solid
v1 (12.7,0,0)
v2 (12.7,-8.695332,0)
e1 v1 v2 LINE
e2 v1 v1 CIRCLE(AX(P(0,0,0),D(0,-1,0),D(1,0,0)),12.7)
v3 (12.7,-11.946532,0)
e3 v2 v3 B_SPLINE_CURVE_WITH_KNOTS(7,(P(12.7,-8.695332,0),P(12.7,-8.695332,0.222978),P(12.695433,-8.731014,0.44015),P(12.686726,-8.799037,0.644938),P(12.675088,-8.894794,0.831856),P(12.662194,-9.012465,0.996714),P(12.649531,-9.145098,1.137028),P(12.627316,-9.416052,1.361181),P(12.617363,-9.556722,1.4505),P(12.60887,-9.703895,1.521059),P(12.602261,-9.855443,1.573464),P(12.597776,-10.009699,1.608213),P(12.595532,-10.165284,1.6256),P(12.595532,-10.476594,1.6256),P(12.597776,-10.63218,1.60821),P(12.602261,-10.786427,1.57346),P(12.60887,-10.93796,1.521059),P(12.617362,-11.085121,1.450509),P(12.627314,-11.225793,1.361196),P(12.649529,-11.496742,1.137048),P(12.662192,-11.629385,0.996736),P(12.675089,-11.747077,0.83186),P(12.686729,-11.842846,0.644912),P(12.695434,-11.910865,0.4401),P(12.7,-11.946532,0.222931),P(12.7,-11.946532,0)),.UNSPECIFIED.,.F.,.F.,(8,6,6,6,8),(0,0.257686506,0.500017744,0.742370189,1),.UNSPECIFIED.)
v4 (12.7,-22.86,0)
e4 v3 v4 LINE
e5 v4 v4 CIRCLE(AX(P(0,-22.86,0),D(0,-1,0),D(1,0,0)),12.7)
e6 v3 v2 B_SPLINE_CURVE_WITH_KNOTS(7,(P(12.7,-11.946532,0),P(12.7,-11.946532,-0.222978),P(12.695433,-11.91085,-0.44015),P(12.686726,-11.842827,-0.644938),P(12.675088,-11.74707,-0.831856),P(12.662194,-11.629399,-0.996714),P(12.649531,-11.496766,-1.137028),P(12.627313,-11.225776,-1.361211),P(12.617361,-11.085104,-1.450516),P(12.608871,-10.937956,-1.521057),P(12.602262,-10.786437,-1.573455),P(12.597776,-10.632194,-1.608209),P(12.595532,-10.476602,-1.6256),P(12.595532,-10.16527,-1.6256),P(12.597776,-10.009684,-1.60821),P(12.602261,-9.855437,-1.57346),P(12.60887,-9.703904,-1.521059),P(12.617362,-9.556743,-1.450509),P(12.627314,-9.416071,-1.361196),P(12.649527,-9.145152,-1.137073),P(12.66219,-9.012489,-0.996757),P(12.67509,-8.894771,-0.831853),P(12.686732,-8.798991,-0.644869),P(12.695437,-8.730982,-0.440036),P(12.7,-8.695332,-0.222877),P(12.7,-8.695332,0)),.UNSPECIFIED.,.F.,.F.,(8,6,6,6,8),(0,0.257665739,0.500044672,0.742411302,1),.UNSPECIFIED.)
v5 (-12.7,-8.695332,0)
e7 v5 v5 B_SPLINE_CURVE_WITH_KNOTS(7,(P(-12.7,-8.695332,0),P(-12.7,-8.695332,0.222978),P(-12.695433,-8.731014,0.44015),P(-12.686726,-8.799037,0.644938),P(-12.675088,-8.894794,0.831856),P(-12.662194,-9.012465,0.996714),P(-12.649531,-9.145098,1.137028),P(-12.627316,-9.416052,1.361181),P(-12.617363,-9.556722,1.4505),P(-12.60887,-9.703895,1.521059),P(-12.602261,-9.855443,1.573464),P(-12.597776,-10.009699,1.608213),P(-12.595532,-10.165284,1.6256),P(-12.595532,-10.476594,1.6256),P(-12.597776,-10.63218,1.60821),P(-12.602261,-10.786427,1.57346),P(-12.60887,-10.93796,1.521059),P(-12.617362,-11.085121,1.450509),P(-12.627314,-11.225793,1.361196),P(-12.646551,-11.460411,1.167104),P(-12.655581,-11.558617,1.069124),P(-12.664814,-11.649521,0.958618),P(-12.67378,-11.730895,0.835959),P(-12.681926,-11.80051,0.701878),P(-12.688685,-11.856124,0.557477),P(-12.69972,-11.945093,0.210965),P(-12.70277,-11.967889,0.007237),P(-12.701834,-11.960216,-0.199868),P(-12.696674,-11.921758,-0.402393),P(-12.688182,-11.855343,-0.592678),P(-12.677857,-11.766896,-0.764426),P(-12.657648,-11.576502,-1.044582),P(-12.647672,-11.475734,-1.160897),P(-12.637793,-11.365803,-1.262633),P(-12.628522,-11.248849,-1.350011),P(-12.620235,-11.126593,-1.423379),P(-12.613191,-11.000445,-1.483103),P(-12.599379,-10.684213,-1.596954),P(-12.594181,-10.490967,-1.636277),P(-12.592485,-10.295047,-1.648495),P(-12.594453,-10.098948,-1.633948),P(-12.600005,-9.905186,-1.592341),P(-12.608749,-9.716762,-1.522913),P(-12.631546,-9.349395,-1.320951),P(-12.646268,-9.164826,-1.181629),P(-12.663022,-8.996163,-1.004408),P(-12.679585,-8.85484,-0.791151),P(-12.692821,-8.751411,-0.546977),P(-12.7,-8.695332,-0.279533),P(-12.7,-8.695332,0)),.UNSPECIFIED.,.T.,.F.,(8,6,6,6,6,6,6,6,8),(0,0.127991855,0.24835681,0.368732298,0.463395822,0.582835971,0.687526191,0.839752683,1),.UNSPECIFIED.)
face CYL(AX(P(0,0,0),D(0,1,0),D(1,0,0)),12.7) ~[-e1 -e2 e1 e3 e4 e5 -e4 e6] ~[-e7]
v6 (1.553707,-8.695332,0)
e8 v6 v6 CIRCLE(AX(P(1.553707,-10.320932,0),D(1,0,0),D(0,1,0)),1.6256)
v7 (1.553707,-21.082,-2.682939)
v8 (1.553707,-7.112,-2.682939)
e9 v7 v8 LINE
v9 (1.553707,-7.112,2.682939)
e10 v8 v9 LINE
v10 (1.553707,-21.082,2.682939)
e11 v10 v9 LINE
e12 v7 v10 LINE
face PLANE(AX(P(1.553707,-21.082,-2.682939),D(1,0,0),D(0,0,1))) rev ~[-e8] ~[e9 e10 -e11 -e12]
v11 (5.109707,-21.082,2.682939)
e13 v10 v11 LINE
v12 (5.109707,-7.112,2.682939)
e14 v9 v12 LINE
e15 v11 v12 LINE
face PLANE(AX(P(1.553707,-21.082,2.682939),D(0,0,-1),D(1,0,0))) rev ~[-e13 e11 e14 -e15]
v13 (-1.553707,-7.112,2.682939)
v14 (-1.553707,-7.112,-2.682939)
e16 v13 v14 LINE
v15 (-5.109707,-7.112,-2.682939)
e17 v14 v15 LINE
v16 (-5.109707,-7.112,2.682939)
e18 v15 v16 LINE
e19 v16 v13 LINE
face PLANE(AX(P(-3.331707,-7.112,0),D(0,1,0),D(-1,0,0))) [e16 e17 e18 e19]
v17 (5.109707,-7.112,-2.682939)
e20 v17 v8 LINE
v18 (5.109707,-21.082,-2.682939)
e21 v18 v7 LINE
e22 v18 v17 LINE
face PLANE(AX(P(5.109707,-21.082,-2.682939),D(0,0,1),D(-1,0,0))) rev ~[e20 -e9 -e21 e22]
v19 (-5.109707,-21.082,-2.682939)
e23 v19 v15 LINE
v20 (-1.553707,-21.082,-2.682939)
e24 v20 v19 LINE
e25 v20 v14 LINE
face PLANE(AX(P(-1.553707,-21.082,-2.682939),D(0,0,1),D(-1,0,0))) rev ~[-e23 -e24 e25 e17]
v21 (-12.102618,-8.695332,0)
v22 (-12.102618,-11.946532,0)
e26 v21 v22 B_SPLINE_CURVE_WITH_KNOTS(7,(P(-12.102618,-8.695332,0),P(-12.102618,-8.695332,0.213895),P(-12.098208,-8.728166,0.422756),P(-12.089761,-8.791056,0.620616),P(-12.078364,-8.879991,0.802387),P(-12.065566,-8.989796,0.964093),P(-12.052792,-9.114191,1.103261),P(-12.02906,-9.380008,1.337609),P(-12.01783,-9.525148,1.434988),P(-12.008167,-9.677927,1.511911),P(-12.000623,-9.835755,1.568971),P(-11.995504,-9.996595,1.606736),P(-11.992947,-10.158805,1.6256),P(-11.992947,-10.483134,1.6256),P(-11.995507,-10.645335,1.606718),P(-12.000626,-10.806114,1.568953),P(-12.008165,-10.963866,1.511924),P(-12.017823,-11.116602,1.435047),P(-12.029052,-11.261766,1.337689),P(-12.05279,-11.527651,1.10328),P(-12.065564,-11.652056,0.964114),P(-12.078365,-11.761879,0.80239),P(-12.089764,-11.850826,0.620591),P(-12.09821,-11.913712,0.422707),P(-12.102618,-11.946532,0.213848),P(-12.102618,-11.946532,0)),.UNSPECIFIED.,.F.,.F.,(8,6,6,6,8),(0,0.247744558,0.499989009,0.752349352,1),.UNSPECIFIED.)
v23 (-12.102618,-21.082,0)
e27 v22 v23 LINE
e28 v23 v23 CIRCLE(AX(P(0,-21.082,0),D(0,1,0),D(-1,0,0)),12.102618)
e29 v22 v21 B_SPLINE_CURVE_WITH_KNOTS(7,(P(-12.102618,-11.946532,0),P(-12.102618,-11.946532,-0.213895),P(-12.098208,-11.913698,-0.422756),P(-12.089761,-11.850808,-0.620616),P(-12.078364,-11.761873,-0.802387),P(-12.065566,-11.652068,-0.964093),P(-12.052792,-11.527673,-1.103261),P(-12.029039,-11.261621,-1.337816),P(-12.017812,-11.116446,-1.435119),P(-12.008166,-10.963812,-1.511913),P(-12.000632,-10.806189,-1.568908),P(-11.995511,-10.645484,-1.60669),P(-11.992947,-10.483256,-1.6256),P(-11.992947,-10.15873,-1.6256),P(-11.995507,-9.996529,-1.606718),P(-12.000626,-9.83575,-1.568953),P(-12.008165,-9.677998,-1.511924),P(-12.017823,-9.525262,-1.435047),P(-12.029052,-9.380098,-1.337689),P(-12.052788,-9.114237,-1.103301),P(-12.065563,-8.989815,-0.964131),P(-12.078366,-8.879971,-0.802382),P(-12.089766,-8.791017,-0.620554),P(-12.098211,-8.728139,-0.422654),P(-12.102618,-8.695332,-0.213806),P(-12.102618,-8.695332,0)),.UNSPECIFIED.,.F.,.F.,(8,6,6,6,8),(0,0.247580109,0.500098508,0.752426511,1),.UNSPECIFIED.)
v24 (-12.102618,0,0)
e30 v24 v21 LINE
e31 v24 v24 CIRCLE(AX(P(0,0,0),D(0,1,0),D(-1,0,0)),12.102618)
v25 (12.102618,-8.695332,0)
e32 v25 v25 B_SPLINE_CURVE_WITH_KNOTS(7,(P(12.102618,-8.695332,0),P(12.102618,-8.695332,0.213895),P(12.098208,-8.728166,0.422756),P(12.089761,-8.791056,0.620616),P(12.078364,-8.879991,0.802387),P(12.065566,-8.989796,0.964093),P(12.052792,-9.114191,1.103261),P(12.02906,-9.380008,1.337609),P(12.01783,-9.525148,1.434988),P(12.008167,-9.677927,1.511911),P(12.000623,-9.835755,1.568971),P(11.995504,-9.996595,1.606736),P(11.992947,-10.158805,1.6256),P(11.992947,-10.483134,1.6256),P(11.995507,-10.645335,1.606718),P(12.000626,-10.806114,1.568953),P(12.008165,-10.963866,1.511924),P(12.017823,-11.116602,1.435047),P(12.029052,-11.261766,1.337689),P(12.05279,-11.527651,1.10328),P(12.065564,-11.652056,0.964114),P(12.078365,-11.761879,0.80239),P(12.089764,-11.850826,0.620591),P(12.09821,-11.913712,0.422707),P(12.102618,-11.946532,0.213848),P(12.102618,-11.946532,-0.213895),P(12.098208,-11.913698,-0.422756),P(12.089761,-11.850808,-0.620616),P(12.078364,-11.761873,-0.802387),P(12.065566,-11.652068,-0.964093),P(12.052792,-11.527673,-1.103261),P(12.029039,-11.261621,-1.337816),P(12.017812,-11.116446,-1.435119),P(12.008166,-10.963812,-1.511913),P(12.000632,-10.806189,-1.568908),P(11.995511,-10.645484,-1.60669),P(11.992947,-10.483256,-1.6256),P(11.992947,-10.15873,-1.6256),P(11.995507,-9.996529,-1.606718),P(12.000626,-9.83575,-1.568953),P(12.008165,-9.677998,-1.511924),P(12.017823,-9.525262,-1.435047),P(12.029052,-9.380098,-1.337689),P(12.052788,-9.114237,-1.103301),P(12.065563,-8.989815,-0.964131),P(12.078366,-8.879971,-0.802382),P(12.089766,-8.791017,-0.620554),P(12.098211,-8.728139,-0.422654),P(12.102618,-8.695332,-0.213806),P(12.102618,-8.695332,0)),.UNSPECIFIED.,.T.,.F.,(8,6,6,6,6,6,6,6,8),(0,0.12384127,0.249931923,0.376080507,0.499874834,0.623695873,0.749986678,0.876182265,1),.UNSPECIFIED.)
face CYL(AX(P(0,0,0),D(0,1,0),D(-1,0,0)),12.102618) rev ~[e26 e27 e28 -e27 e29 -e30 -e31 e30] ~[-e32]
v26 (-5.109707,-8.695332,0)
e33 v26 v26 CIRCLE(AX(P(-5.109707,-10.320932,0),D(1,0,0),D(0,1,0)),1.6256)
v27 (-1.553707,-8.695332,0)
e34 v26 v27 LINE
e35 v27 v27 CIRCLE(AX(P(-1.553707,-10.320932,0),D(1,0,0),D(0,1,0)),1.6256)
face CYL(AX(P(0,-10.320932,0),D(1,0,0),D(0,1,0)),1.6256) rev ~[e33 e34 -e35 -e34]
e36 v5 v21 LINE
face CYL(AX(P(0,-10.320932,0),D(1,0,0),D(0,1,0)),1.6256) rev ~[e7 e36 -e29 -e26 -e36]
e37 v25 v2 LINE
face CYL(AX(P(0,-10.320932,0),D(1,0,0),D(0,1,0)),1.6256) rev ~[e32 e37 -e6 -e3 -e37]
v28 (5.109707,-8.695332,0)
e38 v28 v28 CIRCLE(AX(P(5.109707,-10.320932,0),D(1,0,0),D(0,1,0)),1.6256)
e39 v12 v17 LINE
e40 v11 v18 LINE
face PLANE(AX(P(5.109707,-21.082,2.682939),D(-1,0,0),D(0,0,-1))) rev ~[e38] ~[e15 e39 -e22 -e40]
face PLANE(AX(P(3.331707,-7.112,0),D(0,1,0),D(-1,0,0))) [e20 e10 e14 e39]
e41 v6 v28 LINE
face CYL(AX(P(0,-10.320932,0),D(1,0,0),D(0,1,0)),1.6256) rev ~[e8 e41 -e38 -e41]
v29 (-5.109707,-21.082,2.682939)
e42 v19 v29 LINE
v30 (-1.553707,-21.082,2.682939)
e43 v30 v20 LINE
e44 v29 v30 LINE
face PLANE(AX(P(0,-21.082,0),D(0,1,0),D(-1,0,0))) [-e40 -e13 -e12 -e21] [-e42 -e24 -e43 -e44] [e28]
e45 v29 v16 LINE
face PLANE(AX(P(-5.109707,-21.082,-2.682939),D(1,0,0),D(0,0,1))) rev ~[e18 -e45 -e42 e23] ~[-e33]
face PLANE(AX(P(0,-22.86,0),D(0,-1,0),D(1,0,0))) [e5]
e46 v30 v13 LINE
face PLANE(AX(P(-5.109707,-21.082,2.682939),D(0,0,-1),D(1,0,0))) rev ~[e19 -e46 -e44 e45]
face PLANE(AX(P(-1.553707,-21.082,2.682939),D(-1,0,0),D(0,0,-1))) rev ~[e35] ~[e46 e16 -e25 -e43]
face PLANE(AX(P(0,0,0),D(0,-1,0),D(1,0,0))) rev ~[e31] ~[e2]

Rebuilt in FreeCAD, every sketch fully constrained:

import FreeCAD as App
import Part
import Sketcher

V = App.Vector
Q = App.Units.Quantity


def add_polygon(sketch, points):
    """Adds a closed chain of lines whose ends are joined by coincident constraints."""
    first, n = sketch.GeometryCount, len(points)
    for a, b in zip(points, points[1:] + points[:1]):
        sketch.addGeometry(Part.LineSegment(App.Vector(*a, 0), App.Vector(*b, 0)), False)
    for i in range(n):
        sketch.addConstraint(Sketcher.Constraint("Coincident", first + i, 2, first + (i + 1) % n, 1))

doc = App.newDocument("Part")
body = doc.addObject("PartDesign::Body", "Body")

sketch1 = body.newObject("Sketcher::SketchObject", "Sketch")
sketch1.AttachmentSupport = (doc.getObject("XZ_Plane"), [""])
sketch1.MapMode = "FlatFace"
sketch1.addGeometry(Part.Circle(V(0, 0, 0), V(0, 0, 1), 13), False)
sketch1.addConstraint(Sketcher.Constraint("Coincident", 0, 3, -1, 1))
sketch1.addConstraint(Sketcher.Constraint("Diameter", 0, Q("1 in")))
pad1 = body.newObject("PartDesign::Pad", "Pad")
pad1.Profile = sketch1
pad1.Length = Q("0.9 in")

sketch2 = body.newObject("Sketcher::SketchObject", "Sketch001")
sketch2.AttachmentSupport = (doc.getObject("XZ_Plane"), [""])
sketch2.MapMode = "FlatFace"
sketch2.addGeometry(Part.Circle(V(0, 0, 0), V(0, 0, 1), 12), False)
sketch2.addConstraint(Sketcher.Constraint("Coincident", 0, 3, -1, 1))
sketch2.addConstraint(Sketcher.Constraint("Diameter", 0, 24.205236))
pocket1 = body.newObject("PartDesign::Pocket", "Pocket")
pocket1.Profile = sketch2
pocket1.Length = Q("0.83 in")
pocket1.Reversed = True

sketch3 = body.newObject("Sketcher::SketchObject", "Sketch002")
sketch3.AttachmentSupport = (doc.getObject("XZ_Plane"), [""])
sketch3.MapMode = "FlatFace"
sketch3.AttachmentOffset = App.Placement(V(0, 0, 0.83 * 25.4), App.Rotation())
add_polygon(sketch3, [(1.6, 2.7), (5.1, 2.7), (5.1, -2.7), (1.6, -2.7)])
add_polygon(sketch3, [(-1.6, 2.7), (-1.6, -2.7), (-5.1, -2.7), (-5.1, 2.7)])
sketch3.addConstraint(Sketcher.Constraint("Horizontal", 0))
sketch3.addConstraint(Sketcher.Constraint("Vertical", 1))
sketch3.addConstraint(Sketcher.Constraint("Horizontal", 2))
sketch3.addConstraint(Sketcher.Constraint("Vertical", 3))
sketch3.addConstraint(Sketcher.Constraint("Vertical", 4))
sketch3.addConstraint(Sketcher.Constraint("Horizontal", 5))
sketch3.addConstraint(Sketcher.Constraint("Vertical", 6))
sketch3.addConstraint(Sketcher.Constraint("Horizontal", 7))
sketch3.addConstraint(Sketcher.Constraint("Symmetric", 3, 2, 4, 2, -1, 1))
sketch3.addConstraint(Sketcher.Constraint("Symmetric", 1, 2, 6, 2, -1, 1))
sketch3.addConstraint(Sketcher.Constraint("Horizontal", 2, 2, 4, 2))
sketch3.addConstraint(Sketcher.Constraint("DistanceX", 0, 1, 0, 2, Q("0.14 in")))
sketch3.addConstraint(Sketcher.Constraint("DistanceY", 1, 2, 1, 1, 5.365878))
sketch3.addConstraint(Sketcher.Constraint("DistanceX", -1, 1, 0, 2, 5.109707))
pad2 = body.newObject("PartDesign::Pad", "Pad001")
pad2.Profile = sketch3
pad2.Length = Q("0.55 in")
pad2.Reversed = True

sketch4 = body.newObject("Sketcher::SketchObject", "Sketch003")
sketch4.AttachmentSupport = (doc.getObject("YZ_Plane"), [""])
sketch4.MapMode = "FlatFace"
sketch4.addGeometry(Part.Circle(V(-10.3, 0, 0), V(0, 0, 1), 1.6), False)
sketch4.addConstraint(Sketcher.Constraint("PointOnObject", 0, 3, -1))
sketch4.addConstraint(Sketcher.Constraint("Diameter", 0, Q("0.128 in")))
sketch4.addConstraint(Sketcher.Constraint("DistanceX", 0, 3, -1, 1, 10.320932))
pocket2 = body.newObject("PartDesign::Pocket", "Pocket001")
pocket2.Profile = sketch4
pocket2.Length = Q("1 in")
pocket2.Midplane = True

doc.recompute()
